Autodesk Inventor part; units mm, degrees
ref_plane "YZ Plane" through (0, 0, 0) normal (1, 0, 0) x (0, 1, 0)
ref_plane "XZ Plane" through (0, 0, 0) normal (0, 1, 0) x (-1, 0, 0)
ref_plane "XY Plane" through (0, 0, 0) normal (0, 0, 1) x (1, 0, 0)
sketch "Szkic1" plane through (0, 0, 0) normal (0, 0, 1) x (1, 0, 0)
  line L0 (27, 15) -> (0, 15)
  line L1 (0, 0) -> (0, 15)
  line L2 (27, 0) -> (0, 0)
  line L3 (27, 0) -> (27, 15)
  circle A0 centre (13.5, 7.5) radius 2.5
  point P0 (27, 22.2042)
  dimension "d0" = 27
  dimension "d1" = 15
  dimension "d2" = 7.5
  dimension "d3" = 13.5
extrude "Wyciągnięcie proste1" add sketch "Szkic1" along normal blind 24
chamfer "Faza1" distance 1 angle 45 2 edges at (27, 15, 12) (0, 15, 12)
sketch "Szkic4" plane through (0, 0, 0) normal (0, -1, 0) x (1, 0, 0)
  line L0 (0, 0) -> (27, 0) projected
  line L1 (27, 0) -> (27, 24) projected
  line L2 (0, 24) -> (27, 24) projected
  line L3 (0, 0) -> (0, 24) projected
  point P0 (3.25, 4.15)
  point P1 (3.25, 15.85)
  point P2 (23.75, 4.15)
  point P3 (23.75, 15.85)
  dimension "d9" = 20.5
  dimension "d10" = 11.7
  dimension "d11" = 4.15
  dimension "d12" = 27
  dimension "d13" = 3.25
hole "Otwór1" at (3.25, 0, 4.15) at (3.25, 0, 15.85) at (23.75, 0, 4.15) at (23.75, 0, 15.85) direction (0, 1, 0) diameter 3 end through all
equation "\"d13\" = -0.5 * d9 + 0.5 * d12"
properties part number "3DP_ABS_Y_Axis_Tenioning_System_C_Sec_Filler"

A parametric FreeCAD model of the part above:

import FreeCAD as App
import Part
import Sketcher
Q = App.Units.Quantity


def edges_at(feature, points):
    """Names of the edges that pass closest to the given points."""
    edges = feature.Shape.Edges
    near = lambda p: min(range(len(edges)), key=lambda i: edges[i].distToShape(Part.Vertex(*p))[0])
    return sorted({f"Edge{near(p) + 1}" for p in points})


def add_polygon(sketch, points):
    """Adds a closed chain of lines whose ends are joined by coincident constraints."""
    first, n = sketch.GeometryCount, len(points)
    for a, b in zip(points, points[1:] + points[:1]):
        sketch.addGeometry(Part.LineSegment(App.Vector(*a, 0), App.Vector(*b, 0)), False)
    for i in range(n):
        sketch.addConstraint(Sketcher.Constraint("Coincident", first + i, 2, first + (i + 1) % n, 1))

doc = App.newDocument("Part")
body = doc.addObject("PartDesign::Body", "Body")

sketch1 = body.newObject("Sketcher::SketchObject", "Sketch")
sketch1.AttachmentSupport = (doc.getObject("XY_Plane"), [""])
sketch1.MapMode = "FlatFace"
add_polygon(sketch1, [(27, 0), (27, 15), (0, 15), (0, 0)])
sketch1.addGeometry(Part.Circle(App.Vector(13.5, 7.5, 0), App.Vector(0, 0, 1), 2.5), False)
sketch1.addConstraint([
    Sketcher.Constraint("Vertical", 0),
    Sketcher.Constraint("Horizontal", 1),
    Sketcher.Constraint("Vertical", 2),
    Sketcher.Constraint("Horizontal", 3),
    Sketcher.Constraint("Coincident", 2, 2, -1, 1),
    Sketcher.Constraint("DistanceX", 1, 2, 1, 1, Q("27 mm")),
    Sketcher.Constraint("DistanceY", 0, 1, 0, 2, Q("15 mm")),
    Sketcher.Constraint("Diameter", 4, Q("5 mm")),
    Sketcher.Constraint("DistanceX", -1, 1, 4, 3, Q("13.5 mm")),
    Sketcher.Constraint("DistanceY", -1, 1, 4, 3, Q("7.5 mm")),
])
pad1 = body.newObject("PartDesign::Pad", "Pad")
pad1.Profile = sketch1
pad1.Length = 24
doc.recompute()

chamfer = body.newObject("PartDesign::Chamfer", "Chamfer")
chamfer.Base = (pad1, edges_at(pad1, [(27, 15, 12), (0, 15, 12)]))
chamfer.Size = 1

sketch2 = body.newObject("Sketcher::SketchObject", "Sketch001")
sketch2.AttachmentSupport = (doc.getObject("XZ_Plane"), [""])
sketch2.MapMode = "FlatFace"
sketch2.addGeometry([
    Part.Circle(App.Vector(3.2, 4.2, 0), App.Vector(0, 0, 1), 1.5),
    Part.Circle(App.Vector(3.2, 15.8, 0), App.Vector(0, 0, 1), 1.5),
    Part.Circle(App.Vector(23.8, 4.2, 0), App.Vector(0, 0, 1), 1.5),
    Part.Circle(App.Vector(23.8, 15.8, 0), App.Vector(0, 0, 1), 1.5),
], False)
sketch2.addConstraint([
    Sketcher.Constraint("Equal", 0, 1),
    Sketcher.Constraint("Equal", 1, 2),
    Sketcher.Constraint("Equal", 2, 3),
    Sketcher.Constraint("Horizontal", 0, 3, 2, 3),
    Sketcher.Constraint("Horizontal", 1, 3, 3, 3),
    Sketcher.Constraint("Vertical", 0, 3, 1, 3),
    Sketcher.Constraint("Vertical", 2, 3, 3, 3),
    Sketcher.Constraint("Diameter", 0, Q("3 mm")),
    Sketcher.Constraint("DistanceY", 0, 3, 1, 3, Q("11.7 mm")),
    Sketcher.Constraint("DistanceX", 0, 3, 2, 3, Q("20.5 mm")),
    Sketcher.Constraint("DistanceX", -1, 1, 0, 3, Q("3.25 mm")),
    Sketcher.Constraint("DistanceY", -1, 1, 0, 3, Q("4.15 mm")),
])
doc.recompute()
hole = body.newObject("PartDesign::Hole", "Hole")
hole.Profile = sketch2
hole.ThreadType = "None"
hole.Diameter = 3
hole.DepthType = "ThroughAll"

doc.recompute()
